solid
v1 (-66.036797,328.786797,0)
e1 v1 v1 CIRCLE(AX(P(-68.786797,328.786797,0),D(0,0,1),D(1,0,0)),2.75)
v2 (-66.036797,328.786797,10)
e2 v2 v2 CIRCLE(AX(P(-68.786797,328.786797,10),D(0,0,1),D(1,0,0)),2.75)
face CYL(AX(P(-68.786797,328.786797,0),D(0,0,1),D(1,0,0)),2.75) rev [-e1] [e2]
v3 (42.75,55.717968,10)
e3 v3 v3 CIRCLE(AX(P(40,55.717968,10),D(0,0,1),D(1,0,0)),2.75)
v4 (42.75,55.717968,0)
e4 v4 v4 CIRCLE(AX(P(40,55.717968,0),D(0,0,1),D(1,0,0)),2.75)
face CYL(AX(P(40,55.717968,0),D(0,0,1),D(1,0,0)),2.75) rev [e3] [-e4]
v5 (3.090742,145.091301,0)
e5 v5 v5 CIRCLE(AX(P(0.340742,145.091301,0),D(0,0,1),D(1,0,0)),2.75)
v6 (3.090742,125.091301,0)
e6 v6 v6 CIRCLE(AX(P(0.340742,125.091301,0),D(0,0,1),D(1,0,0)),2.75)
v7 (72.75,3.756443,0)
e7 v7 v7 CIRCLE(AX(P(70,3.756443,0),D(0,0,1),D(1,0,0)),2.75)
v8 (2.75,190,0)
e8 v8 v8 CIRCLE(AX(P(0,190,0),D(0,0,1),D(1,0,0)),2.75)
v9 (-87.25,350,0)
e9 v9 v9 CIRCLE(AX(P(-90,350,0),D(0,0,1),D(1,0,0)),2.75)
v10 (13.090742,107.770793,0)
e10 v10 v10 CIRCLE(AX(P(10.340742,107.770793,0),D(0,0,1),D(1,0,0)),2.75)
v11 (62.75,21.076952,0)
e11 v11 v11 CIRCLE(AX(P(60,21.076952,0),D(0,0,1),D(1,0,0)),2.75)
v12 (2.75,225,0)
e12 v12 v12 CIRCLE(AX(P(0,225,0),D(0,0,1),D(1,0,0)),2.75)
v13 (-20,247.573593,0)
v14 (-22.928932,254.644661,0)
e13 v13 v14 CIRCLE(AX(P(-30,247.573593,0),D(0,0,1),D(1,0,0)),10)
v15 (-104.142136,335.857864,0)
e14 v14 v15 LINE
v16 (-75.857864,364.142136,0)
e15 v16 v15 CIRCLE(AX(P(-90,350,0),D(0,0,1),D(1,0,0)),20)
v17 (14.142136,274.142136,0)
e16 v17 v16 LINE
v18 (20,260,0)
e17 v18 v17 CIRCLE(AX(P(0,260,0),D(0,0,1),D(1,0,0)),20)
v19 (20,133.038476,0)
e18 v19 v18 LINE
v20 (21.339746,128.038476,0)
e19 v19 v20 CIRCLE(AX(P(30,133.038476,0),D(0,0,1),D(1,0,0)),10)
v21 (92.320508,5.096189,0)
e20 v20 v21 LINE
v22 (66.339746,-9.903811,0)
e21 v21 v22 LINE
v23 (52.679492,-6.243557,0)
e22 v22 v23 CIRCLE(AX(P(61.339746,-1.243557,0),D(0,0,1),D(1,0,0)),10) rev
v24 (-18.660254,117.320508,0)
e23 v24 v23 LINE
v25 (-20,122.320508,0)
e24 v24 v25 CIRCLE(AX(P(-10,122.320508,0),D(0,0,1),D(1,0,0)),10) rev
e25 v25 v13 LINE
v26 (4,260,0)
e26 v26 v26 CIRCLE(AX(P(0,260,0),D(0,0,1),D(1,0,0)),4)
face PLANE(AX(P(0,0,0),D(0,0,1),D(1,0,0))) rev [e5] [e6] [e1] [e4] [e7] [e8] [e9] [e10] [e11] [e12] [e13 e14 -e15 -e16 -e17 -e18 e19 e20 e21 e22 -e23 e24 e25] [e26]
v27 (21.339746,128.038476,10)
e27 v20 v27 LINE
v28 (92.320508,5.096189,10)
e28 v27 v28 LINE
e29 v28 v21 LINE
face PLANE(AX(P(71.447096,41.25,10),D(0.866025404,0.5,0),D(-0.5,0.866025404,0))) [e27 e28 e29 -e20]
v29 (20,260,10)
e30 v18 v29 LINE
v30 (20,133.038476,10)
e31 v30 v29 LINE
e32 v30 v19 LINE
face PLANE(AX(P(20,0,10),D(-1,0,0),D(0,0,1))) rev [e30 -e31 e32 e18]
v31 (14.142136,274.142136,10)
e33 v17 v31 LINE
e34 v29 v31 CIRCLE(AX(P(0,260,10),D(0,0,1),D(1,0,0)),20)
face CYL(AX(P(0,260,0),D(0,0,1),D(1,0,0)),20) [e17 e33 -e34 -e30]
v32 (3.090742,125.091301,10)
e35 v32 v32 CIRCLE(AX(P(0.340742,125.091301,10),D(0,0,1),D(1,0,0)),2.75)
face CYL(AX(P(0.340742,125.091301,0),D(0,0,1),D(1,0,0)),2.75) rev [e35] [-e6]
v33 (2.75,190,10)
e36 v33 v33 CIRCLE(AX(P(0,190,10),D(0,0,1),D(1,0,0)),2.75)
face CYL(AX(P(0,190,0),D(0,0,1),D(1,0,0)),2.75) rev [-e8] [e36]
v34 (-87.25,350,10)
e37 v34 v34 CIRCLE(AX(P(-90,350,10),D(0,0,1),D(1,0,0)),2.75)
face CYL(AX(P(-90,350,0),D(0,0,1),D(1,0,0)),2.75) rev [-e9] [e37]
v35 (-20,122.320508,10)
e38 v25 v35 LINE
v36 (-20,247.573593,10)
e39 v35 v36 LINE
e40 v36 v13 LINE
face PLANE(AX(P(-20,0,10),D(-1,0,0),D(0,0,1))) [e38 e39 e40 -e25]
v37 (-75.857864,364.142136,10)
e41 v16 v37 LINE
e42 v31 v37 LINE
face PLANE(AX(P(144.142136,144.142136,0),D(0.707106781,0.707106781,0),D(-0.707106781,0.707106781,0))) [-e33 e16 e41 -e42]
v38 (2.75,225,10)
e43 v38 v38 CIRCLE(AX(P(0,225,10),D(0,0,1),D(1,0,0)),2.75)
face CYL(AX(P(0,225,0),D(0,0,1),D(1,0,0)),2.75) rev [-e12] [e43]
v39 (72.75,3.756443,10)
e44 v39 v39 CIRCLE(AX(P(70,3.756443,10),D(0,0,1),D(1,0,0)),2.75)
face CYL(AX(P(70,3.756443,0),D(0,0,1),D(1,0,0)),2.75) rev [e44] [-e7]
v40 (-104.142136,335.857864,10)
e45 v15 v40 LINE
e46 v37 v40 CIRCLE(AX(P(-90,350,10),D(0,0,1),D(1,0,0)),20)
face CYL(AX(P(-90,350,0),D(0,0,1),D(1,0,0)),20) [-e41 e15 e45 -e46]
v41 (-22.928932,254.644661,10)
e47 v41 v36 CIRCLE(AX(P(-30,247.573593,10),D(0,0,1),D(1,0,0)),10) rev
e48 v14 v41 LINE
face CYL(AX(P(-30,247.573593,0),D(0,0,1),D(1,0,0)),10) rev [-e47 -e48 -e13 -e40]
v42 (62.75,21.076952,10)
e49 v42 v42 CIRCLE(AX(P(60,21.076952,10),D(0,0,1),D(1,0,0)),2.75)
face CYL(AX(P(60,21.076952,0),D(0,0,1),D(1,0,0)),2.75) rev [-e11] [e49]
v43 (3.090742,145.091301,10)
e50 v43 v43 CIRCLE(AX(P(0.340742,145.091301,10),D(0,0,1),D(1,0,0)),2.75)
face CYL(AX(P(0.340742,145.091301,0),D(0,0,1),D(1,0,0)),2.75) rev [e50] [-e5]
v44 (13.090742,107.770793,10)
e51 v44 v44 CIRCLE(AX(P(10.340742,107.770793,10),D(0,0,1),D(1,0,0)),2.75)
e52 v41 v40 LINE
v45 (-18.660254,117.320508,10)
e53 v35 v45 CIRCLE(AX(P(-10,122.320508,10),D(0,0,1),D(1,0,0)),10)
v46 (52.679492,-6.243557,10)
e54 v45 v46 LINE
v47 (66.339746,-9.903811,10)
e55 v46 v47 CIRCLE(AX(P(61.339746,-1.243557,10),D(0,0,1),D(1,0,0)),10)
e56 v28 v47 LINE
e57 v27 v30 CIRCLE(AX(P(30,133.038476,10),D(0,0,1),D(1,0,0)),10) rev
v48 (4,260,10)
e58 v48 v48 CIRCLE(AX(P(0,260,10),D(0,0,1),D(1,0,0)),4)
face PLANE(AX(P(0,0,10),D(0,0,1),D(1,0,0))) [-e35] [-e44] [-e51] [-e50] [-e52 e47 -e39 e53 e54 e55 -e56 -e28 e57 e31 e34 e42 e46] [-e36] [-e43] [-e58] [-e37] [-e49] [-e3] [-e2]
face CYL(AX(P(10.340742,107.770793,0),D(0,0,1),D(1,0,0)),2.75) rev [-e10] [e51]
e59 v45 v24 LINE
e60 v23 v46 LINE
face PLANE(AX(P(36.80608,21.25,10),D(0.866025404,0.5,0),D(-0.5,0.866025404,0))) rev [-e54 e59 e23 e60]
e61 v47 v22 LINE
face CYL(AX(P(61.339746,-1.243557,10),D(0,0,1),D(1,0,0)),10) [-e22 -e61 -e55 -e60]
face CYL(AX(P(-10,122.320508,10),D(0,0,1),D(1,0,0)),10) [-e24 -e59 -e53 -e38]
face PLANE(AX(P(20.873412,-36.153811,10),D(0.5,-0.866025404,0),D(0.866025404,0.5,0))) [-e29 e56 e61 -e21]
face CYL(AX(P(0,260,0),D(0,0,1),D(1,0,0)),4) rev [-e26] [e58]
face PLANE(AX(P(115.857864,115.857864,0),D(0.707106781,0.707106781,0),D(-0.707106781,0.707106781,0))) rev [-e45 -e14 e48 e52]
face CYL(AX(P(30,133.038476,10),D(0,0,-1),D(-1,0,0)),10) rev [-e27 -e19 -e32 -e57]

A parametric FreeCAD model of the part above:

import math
import FreeCAD as App
import Part
import Sketcher

V = App.Vector
Q = App.Units.Quantity


def edges_at(feature, points):
    """Names of the edges that pass closest to the given points."""
    edges = feature.Shape.Edges
    near = lambda p: min(range(len(edges)), key=lambda i: edges[i].distToShape(Part.Vertex(*p))[0])
    return sorted({f"Edge{near(p) + 1}" for p in points})

doc = App.newDocument("Part")
body = doc.addObject("PartDesign::Body", "Body")

# Sketch on XY plane
sketch1 = body.newObject("Sketcher::SketchObject", "Sketch")
sketch1.AttachmentSupport = (doc.getObject("XY_Plane"), [""])
sketch1.MapMode = "FlatFace"
sketch1.addGeometry([
    Part.LineSegment(V(-20, 250, 0), V(-20, 119.641016, 0)),  # 0
    Part.LineSegment(V(-20, 119.641016, 0), V(57.679492, -14.903811, 0)),  # 1
    Part.LineSegment(V(57.679492, -14.903811, 0), V(92.320508, 5.096189, 0)),  # 2
    Part.LineSegment(V(92.320508, 5.096189, 0), V(20, 130.358984, 0)),  # 3
    Part.LineSegment(V(20, 130.358984, 0), V(20, 250, 0)),  # 4
    Part.LineSegment(V(20, 250, 0), V(-20, 250, 0)),  # 5
], False)
sketch1.addConstraint([
    Sketcher.Constraint("Coincident", 0, 2, 1, 1),
    Sketcher.Constraint("Coincident", 1, 2, 2, 1),
    Sketcher.Constraint("Coincident", 2, 2, 3, 1),
    Sketcher.Constraint("Coincident", 3, 2, 4, 1),
    Sketcher.Constraint("Coincident", 4, 2, 5, 1),
    Sketcher.Constraint("Coincident", 5, 2, 0, 1),
    Sketcher.Constraint("Vertical", 0),
    Sketcher.Constraint("Vertical", 4),
    Sketcher.Constraint("Horizontal", 5),
    Sketcher.Constraint("Perpendicular", 1, 2),
    Sketcher.Constraint("Perpendicular", 2, 3),
    Sketcher.Constraint("DistanceX", 5, 2, 5, 1, 40.0),
    Sketcher.Constraint("Angle", 1, Q("-60 deg")),
    Sketcher.Constraint("Distance", 2, 40.0),
    Sketcher.Constraint("DistanceX", 0, 2, -1, 1, 20.0),
    Sketcher.Constraint("DistanceY", -1, 1, 4, 2, 250.0),
    Sketcher.Constraint("DistanceY", 0, 2, 0, 1, 130.358984),
    Sketcher.Constraint("DistanceX", -1, 1, 1, 2, 57.679492),
])
pad1 = body.newObject("PartDesign::Pad", "Pad")
pad1.Profile = sketch1
pad1.Length = 10
doc.recompute()

fillet = body.newObject("PartDesign::Fillet", "Fillet")
fillet.Base = (pad1, edges_at(pad1, [(57.679, -14.904, 5), (-20, 119.641, 5), (20, 130.359, 5)]))
fillet.Radius = 10

# Sketch on XY plane
sketch2 = body.newObject("Sketcher::SketchObject", "Sketch001")
sketch2.AttachmentSupport = (doc.getObject("XY_Plane"), [""])
sketch2.MapMode = "FlatFace"
sketch2.AttachmentOffset = App.Placement(V(0, 0, 10), App.Rotation())
sketch2.addGeometry([
    Part.LineSegment(V(20, 250, 0), V(20, 260, 0)),  # 0
    Part.ArcOfCircle(Part.Circle(V(0, 260, 0), V(0, 0, 1), 20), math.radians(0), math.radians(180)),  # 1
    Part.LineSegment(V(-20, 260, 0), V(-20, 250, 0)),  # 2
    Part.LineSegment(V(-20, 250, 0), V(20, 250, 0)),  # 3
    Part.Circle(V(0, 260, 0), V(0, 0, 1), 4),  # 4
], False)
sketch2.addConstraint([
    Sketcher.Constraint("Tangent", 0, 2, 1, 1),
    Sketcher.Constraint("Tangent", 1, 2, 2, 1),
    Sketcher.Constraint("Coincident", 2, 2, 3, 1),
    Sketcher.Constraint("Coincident", 3, 2, 0, 1),
    Sketcher.Constraint("Vertical", 0),
    Sketcher.Constraint("Vertical", 2),
    Sketcher.Constraint("Horizontal", 3),
    Sketcher.Constraint("Coincident", 4, 3, 1, 3),
    Sketcher.Constraint("PointOnObject", 1, 3, -2),
    Sketcher.Constraint("Diameter", 4, 8.0),
    Sketcher.Constraint("Radius", 1, 20.0),
    Sketcher.Constraint("DistanceY", 0, 1, 0, 2, 10.0),
    Sketcher.Constraint("DistanceY", -1, 1, 1, 3, 260.0),
])
pad2 = body.newObject("PartDesign::Pad", "Pad001")
pad2.Profile = sketch2
pad2.Length = 10
pad2.Reversed = True

# Sketch on XY plane
sketch3 = body.newObject("Sketcher::SketchObject", "Sketch002")
sketch3.AttachmentSupport = (doc.getObject("XY_Plane"), [""])
sketch3.MapMode = "FlatFace"
sketch3.AttachmentOffset = App.Placement(V(0, 0, 10), App.Rotation())
sketch3.addGeometry([
    Part.Circle(V(0, 190, 0), V(0, 0, 1), 2.75),
    Part.Circle(V(0, 225, 0), V(0, 0, 1), 2.75),
], False)
sketch3.addConstraint([
    Sketcher.Constraint("Equal", 0, 1),
    Sketcher.Constraint("PointOnObject", 0, 3, -2),
    Sketcher.Constraint("PointOnObject", 1, 3, -2),
    Sketcher.Constraint("Diameter", 0, 5.5),
    Sketcher.Constraint("DistanceY", -1, 1, 0, 3, 190.0),
    Sketcher.Constraint("DistanceY", -1, 1, 1, 3, 225.0),
])
pocket1 = body.newObject("PartDesign::Pocket", "Pocket")
pocket1.Profile = sketch3
pocket1.Type = "ThroughAll"

# Sketch on XY plane
sketch4 = body.newObject("Sketcher::SketchObject", "Sketch003")
sketch4.AttachmentSupport = (doc.getObject("XY_Plane"), [""])
sketch4.MapMode = "FlatFace"
sketch4.AttachmentOffset = App.Placement(V(0, 0, 10), App.Rotation())
sketch4.addGeometry([
    Part.Circle(V(60, 21.076952, 0), V(0, 0, 1), 2.75),
    Part.Circle(V(70, 3.756443, 0), V(0, 0, 1), 2.75),
], False)
sketch4.addConstraint([
    Sketcher.Constraint("Equal", 0, 1),
    Sketcher.Constraint("Diameter", 0, 5.5),
    Sketcher.Constraint("DistanceX", -1, 1, 0, 3, 60.0),
    Sketcher.Constraint("DistanceX", -1, 1, 1, 3, 70.0),
    Sketcher.Constraint("DistanceY", -1, 1, 0, 3, 21.076952),
    Sketcher.Constraint("DistanceY", 1, 3, 0, 3, 17.320508),
])
pocket2 = body.newObject("PartDesign::Pocket", "Pocket001")
pocket2.Profile = sketch4
pocket2.Type = "ThroughAll"
pocket2.Midplane = True

# Sketch on XY plane
sketch5 = body.newObject("Sketcher::SketchObject", "Sketch004")
sketch5.AttachmentSupport = (doc.getObject("XY_Plane"), [""])
sketch5.MapMode = "FlatFace"
sketch5.AttachmentOffset = App.Placement(V(0, 0, 10), App.Rotation())
sketch5.addGeometry([
    Part.ArcOfCircle(Part.Circle(V(0, 260, 0), V(0, 0, 1), 20), math.radians(45), math.radians(225)),
    Part.LineSegment(V(14.142136, 274.142136, 0), V(-105.857864, 394.142136, 0)),
    Part.ArcOfCircle(Part.Circle(V(-120, 380, 0), V(0, 0, 1), 20), math.radians(45), math.radians(225)),
    Part.LineSegment(V(-134.142136, 365.857864, 0), V(-14.142136, 245.857864, 0)),
], False)
sketch5.addConstraint([
    Sketcher.Constraint("Tangent", 0, 1, 1, 1),
    Sketcher.Constraint("Tangent", 1, 2, 2, 1),
    Sketcher.Constraint("Tangent", 2, 2, 3, 1),
    Sketcher.Constraint("Tangent", 3, 2, 0, 2),
    Sketcher.Constraint("Equal", 0, 2),
    Sketcher.Constraint("PointOnObject", 0, 3, -2),
    Sketcher.Constraint("Radius", 0, 20.0),
    Sketcher.Constraint("Angle", 1, Q("135 deg")),
    Sketcher.Constraint("DistanceY", -1, 1, 0, 3, 260.0),
    Sketcher.Constraint("DistanceX", 2, 3, -1, 1, 120.0),
])
pad3 = body.newObject("PartDesign::Pad", "Pad002")
pad3.Profile = sketch5
pad3.Length = 10
pad3.Reversed = True
doc.recompute()

fillet2 = body.newObject("PartDesign::Fillet", "Fillet001")
fillet2.Base = (pad3, edges_at(pad3, [(-20, 251.716, 5)]))
fillet2.Radius = 10

# Sketch on XY plane
sketch6 = body.newObject("Sketcher::SketchObject", "Sketch005")
sketch6.AttachmentSupport = (doc.getObject("XY_Plane"), [""])
sketch6.MapMode = "FlatFace"
sketch6.AttachmentOffset = App.Placement(V(0, 0, 10), App.Rotation())
sketch6.addGeometry([
    Part.ArcOfCircle(Part.Circle(V(-90, 350, 0), V(0, 0, 1), 20), math.radians(45), math.radians(225)),
    Part.LineSegment(V(-75.857864, 364.142136, 0), V(-105.857864, 394.142136, 0)),
    Part.ArcOfCircle(Part.Circle(V(-120, 380, 0), V(0, 0, 1), 20), math.radians(45), math.radians(225)),
    Part.LineSegment(V(-134.142136, 365.857864, 0), V(-104.142136, 335.857864, 0)),
], False)
sketch6.addConstraint([
    Sketcher.Constraint("Tangent", 0, 1, 1, 1),
    Sketcher.Constraint("Tangent", 1, 2, 2, 1),
    Sketcher.Constraint("Tangent", 2, 2, 3, 1),
    Sketcher.Constraint("Tangent", 3, 2, 0, 2),
    Sketcher.Constraint("Equal", 0, 2),
    Sketcher.Constraint("Radius", 0, 20.0),
    Sketcher.Constraint("Angle", 1, Q("135 deg")),
    Sketcher.Constraint("DistanceX", 0, 3, -1, 1, 90.0),
    Sketcher.Constraint("DistanceY", -1, 1, 0, 3, 350.0),
    Sketcher.Constraint("DistanceX", 2, 3, -1, 1, 120.0),
])
pocket3 = body.newObject("PartDesign::Pocket", "Pocket002")
pocket3.Profile = sketch6
pocket3.Length = 10

# Sketch on XY plane
sketch7 = body.newObject("Sketcher::SketchObject", "Sketch006")
sketch7.AttachmentSupport = (doc.getObject("XY_Plane"), [""])
sketch7.MapMode = "FlatFace"
sketch7.AttachmentOffset = App.Placement(V(0, 0, 10), App.Rotation())
sketch7.addGeometry([
    Part.Circle(V(-90, 350, 0), V(0, 0, 1), 2.75),
    Part.Circle(V(-68.786797, 328.786797, 0), V(0, 0, 1), 2.75),
], False)
sketch7.addConstraint([
    Sketcher.Constraint("Equal", 0, 1),
    Sketcher.Constraint("Diameter", 0, 5.5),
    Sketcher.Constraint("DistanceX", 0, 3, -1, 1, 90.0),
    Sketcher.Constraint("DistanceY", -1, 1, 0, 3, 350.0),
    Sketcher.Constraint("DistanceX", 1, 3, -1, 1, 68.786797),
    Sketcher.Constraint("DistanceY", -1, 1, 1, 3, 328.786797),
])
pocket4 = body.newObject("PartDesign::Pocket", "Pocket003")
pocket4.Profile = sketch7
pocket4.Type = "ThroughAll"

# Sketch on XY plane
sketch8 = body.newObject("Sketcher::SketchObject", "Sketch007")
sketch8.AttachmentSupport = (doc.getObject("XY_Plane"), [""])
sketch8.MapMode = "FlatFace"
sketch8.AttachmentOffset = App.Placement(V(0, 0, 10), App.Rotation())
sketch8.addGeometry(Part.Circle(V(40, 55.717968, 0), V(0, 0, 1), 2.75), False)
sketch8.addConstraint([
    Sketcher.Constraint("Diameter", 0, 5.5),
    Sketcher.Constraint("DistanceX", -1, 1, 0, 3, 40.0),
    Sketcher.Constraint("DistanceY", -1, 1, 0, 3, 55.717968),
])
pocket5 = body.newObject("PartDesign::Pocket", "Pocket004")
pocket5.Profile = sketch8
pocket5.Type = "ThroughAll"

# Sketch on XY plane
sketch9 = body.newObject("Sketcher::SketchObject", "Sketch008")
sketch9.AttachmentSupport = (doc.getObject("XY_Plane"), [""])
sketch9.MapMode = "FlatFace"
sketch9.AttachmentOffset = App.Placement(V(0, 0, 10), App.Rotation())
sketch9.addGeometry([
    Part.Circle(V(0.340742, 145.091301, 0), V(0, 0, 1), 2.75),
    Part.Circle(V(0.340742, 125.091301, 0), V(0, 0, 1), 2.75),
    Part.Circle(V(10.340742, 107.770793, 0), V(0, 0, 1), 2.75),
], False)
sketch9.addConstraint([
    Sketcher.Constraint("Equal", 0, 1),
    Sketcher.Constraint("Equal", 1, 2),
    Sketcher.Constraint("Vertical", 0, 3, 1, 3),
    Sketcher.Constraint("Diameter", 0, 5.5),
    Sketcher.Constraint("DistanceY", 1, 3, 0, 3, 20.0),
    Sketcher.Constraint("DistanceX", 1, 3, 2, 3, 10.0),
    Sketcher.Constraint("DistanceY", -1, 1, 0, 3, 145.091301),
    Sketcher.Constraint("DistanceX", -1, 1, 0, 3, 0.340742),
    Sketcher.Constraint("DistanceY", 2, 3, 1, 3, 17.320508),
])
pocket6 = body.newObject("PartDesign::Pocket", "Pocket005")
pocket6.Profile = sketch9
pocket6.Type = "ThroughAll"
pocket6.Midplane = True

doc.recompute()
